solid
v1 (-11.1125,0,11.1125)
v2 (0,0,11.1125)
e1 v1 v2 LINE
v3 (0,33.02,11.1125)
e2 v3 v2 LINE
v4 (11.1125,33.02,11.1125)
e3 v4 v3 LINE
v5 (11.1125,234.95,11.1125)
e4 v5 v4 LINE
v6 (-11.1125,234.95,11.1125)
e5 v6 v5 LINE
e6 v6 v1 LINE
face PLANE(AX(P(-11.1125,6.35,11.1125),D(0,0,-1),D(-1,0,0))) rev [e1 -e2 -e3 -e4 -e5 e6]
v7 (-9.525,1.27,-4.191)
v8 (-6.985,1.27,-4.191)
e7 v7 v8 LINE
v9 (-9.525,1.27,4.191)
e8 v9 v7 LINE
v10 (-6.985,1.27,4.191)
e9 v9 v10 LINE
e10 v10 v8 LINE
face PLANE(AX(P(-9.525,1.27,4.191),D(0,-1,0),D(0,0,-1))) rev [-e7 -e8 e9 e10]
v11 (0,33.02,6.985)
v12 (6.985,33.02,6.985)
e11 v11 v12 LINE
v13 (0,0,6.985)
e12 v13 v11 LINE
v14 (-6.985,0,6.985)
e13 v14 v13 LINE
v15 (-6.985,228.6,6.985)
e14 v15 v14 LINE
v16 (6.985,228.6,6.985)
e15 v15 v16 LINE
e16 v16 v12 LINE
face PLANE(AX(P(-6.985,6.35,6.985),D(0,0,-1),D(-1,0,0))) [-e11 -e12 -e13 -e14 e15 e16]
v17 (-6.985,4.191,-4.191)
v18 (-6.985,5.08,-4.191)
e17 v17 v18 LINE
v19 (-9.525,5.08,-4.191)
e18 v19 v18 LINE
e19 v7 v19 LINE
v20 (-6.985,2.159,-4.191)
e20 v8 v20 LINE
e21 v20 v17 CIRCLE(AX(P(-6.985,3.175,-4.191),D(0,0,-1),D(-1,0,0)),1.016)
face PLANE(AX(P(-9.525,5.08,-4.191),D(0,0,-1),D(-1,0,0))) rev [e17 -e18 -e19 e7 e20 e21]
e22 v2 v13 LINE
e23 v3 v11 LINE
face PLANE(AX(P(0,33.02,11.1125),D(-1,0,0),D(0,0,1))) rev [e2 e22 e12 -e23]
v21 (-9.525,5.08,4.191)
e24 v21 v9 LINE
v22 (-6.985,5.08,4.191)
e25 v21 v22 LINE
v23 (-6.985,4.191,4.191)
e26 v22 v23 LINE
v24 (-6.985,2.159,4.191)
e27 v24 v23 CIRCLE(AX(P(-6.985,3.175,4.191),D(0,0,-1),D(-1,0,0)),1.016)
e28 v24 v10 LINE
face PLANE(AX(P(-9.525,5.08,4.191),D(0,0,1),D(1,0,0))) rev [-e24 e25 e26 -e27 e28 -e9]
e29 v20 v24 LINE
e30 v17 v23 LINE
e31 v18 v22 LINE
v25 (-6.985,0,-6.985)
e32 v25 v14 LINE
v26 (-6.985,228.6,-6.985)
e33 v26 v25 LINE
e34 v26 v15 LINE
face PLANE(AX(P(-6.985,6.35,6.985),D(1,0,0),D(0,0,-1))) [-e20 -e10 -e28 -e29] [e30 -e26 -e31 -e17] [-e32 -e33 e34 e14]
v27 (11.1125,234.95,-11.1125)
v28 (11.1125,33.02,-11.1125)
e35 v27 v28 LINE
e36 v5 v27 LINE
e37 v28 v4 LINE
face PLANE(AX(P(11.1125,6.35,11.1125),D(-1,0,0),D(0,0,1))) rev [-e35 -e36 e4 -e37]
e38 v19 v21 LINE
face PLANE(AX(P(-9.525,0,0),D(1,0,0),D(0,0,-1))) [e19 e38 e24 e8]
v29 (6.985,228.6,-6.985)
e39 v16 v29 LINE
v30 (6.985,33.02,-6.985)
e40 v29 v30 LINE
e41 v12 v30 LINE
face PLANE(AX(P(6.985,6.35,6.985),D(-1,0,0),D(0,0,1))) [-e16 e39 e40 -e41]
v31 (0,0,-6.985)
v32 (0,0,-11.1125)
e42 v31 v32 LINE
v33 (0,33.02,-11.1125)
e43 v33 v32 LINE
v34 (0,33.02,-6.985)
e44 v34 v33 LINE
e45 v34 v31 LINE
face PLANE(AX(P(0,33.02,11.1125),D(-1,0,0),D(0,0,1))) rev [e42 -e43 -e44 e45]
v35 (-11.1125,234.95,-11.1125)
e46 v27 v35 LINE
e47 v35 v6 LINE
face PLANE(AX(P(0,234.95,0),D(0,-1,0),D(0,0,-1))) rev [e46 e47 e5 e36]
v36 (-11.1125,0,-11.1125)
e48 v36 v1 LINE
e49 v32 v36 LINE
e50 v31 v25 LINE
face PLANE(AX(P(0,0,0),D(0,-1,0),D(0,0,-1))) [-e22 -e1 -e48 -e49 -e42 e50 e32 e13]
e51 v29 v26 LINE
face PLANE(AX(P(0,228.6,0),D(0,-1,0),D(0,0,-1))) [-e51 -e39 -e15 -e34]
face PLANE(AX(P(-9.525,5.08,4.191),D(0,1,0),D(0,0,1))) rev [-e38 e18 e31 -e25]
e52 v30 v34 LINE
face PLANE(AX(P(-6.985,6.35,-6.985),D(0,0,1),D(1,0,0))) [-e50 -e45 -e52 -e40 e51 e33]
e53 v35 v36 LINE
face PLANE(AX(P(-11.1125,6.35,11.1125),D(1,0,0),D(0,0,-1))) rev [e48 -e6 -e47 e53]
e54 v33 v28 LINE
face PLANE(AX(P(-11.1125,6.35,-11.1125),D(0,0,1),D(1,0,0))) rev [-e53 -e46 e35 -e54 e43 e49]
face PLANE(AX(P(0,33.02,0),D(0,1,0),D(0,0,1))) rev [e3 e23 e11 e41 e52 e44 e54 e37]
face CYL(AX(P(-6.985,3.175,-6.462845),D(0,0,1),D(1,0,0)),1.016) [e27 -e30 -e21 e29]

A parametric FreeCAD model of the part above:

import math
import FreeCAD as App
import Part
import Sketcher
Q = App.Units.Quantity


def add_polygon(sketch, points):
    """Adds a closed chain of lines whose ends are joined by coincident constraints."""
    first, n = sketch.GeometryCount, len(points)
    for a, b in zip(points, points[1:] + points[:1]):
        sketch.addGeometry(Part.LineSegment(App.Vector(*a, 0), App.Vector(*b, 0)), False)
    for i in range(n):
        sketch.addConstraint(Sketcher.Constraint("Coincident", first + i, 2, first + (i + 1) % n, 1))

doc = App.newDocument("Part")
body = doc.addObject("PartDesign::Body", "Body")

# Sketch on XZ plane
sketch1 = body.newObject("Sketcher::SketchObject", "Sketch")
sketch1.AttachmentSupport = (doc.getObject("XZ_Plane"), [""])
sketch1.MapMode = "FlatFace"
add_polygon(sketch1, [(-11, -11), (-11, 11), (11, 11), (11, -11)])  # lines 0-3
add_polygon(sketch1, [(7, 7), (-7, 7), (-7, -7), (7, -7)])  # lines 4-7
sketch1.addConstraint(Sketcher.Constraint("Vertical", 0))
sketch1.addConstraint(Sketcher.Constraint("Horizontal", 1))
sketch1.addConstraint(Sketcher.Constraint("Vertical", 2))
sketch1.addConstraint(Sketcher.Constraint("Horizontal", 3))
sketch1.addConstraint(Sketcher.Constraint("Horizontal", 4))
sketch1.addConstraint(Sketcher.Constraint("Vertical", 5))
sketch1.addConstraint(Sketcher.Constraint("Horizontal", 6))
sketch1.addConstraint(Sketcher.Constraint("Vertical", 7))
sketch1.addConstraint(Sketcher.Constraint("Symmetric", 0, 2, 2, 2, -1, 1))
sketch1.addConstraint(Sketcher.Constraint("Symmetric", 4, 2, 6, 2, -1, 1))
sketch1.addConstraint(Sketcher.Constraint("Equal", 3, 0))
sketch1.addConstraint(Sketcher.Constraint("Equal", 6, 5))
sketch1.addConstraint(Sketcher.Constraint("DistanceX", 4, 2, 4, 1, Q("0.55 in")))
sketch1.addConstraint(Sketcher.Constraint("DistanceX", 1, 1, 1, 2, Q("0.875 in")))
pad1 = body.newObject("PartDesign::Pad", "Pad")
pad1.Profile = sketch1
pad1.Length = Q("0.25 in")
pad1.Reversed = True

# Sketch on YZ plane
sketch2 = body.newObject("Sketcher::SketchObject", "Sketch001")
sketch2.AttachmentSupport = (doc.getObject("YZ_Plane"), [""])
sketch2.MapMode = "FlatFace"
sketch2.AttachmentOffset = App.Placement(App.Vector(0, 0, -0.275 * 25.4), App.Rotation())
add_polygon(sketch2, [(5.1, 4.2), (1.3, 4.2), (1.3, -4.2), (5.1, -4.2)])  # lines 0-3
sketch2.addConstraint(Sketcher.Constraint("Horizontal", 0))
sketch2.addConstraint(Sketcher.Constraint("Vertical", 1))
sketch2.addConstraint(Sketcher.Constraint("Horizontal", 2))
sketch2.addConstraint(Sketcher.Constraint("Vertical", 3))
sketch2.addConstraint(Sketcher.Constraint("DistanceX", 0, 2, 0, 1, Q("0.15 in")))
sketch2.addConstraint(Sketcher.Constraint("DistanceY", 1, 2, 1, 1, Q("0.33 in")))
sketch2.addConstraint(Sketcher.Constraint("DistanceX", -1, 1, 2, 2, Q("0.2 in")))
sketch2.addConstraint(Sketcher.Constraint("DistanceY", -1, 1, 0, 2, Q("0.165 in")))
pocket1 = body.newObject("PartDesign::Pocket", "Pocket")
pocket1.Profile = sketch2
pocket1.Length = Q("0.1 in")

# Sketch on XY plane
sketch3 = body.newObject("Sketcher::SketchObject", "Sketch002")
sketch3.AttachmentSupport = (doc.getObject("XY_Plane"), [""])
sketch3.MapMode = "FlatFace"
sketch3.AttachmentOffset = App.Placement(App.Vector(0, 0, 0.165 * 25.4), App.Rotation())
sketch3.addGeometry(Part.LineSegment(App.Vector(-7, 4.2, 0), App.Vector(-7, 2.2, 0)), False)
sketch3.addGeometry(Part.ArcOfCircle(Part.Circle(App.Vector(-7, 3.2, 0), App.Vector(0, 0, 1), 1), math.radians(90), math.radians(270)), False)
sketch3.addConstraint(Sketcher.Constraint("Coincident", 0, 1, 1, 1))
sketch3.addConstraint(Sketcher.Constraint("Coincident", 1, 2, 0, 2))
sketch3.addConstraint(Sketcher.Constraint("Vertical", 0))
sketch3.addConstraint(Sketcher.Constraint("Vertical", 1, 3, 0, 1))
sketch3.addConstraint(Sketcher.Constraint("Radius", 1, Q("0.04 in")))
sketch3.addConstraint(Sketcher.Constraint("DistanceX", 1, 3, -1, 1, Q("0.275 in")))
sketch3.addConstraint(Sketcher.Constraint("DistanceY", -1, 1, 1, 3, Q("0.125 in")))
pad2 = body.newObject("PartDesign::Pad", "Pad001")
pad2.Profile = sketch3
pad2.Length = Q("0.33 in")
pad2.Reversed = True

# Sketch on XZ plane
sketch4 = body.newObject("Sketcher::SketchObject", "Sketch003")
sketch4.AttachmentSupport = (doc.getObject("XZ_Plane"), [""])
sketch4.MapMode = "FlatFace"
sketch4.AttachmentOffset = App.Placement(App.Vector(0, 0, -0.25 * 25.4), App.Rotation())
add_polygon(sketch4, [(-11, -11), (-11, 11), (11, 11), (11, -11)])  # lines 0-3
add_polygon(sketch4, [(7, 7), (-7, 7), (-7, -7), (7, -7)])  # lines 4-7
sketch4.addConstraint(Sketcher.Constraint("Vertical", 0))
sketch4.addConstraint(Sketcher.Constraint("Horizontal", 1))
sketch4.addConstraint(Sketcher.Constraint("Vertical", 2))
sketch4.addConstraint(Sketcher.Constraint("Horizontal", 3))
sketch4.addConstraint(Sketcher.Constraint("Horizontal", 4))
sketch4.addConstraint(Sketcher.Constraint("Vertical", 5))
sketch4.addConstraint(Sketcher.Constraint("Horizontal", 6))
sketch4.addConstraint(Sketcher.Constraint("Vertical", 7))
sketch4.addConstraint(Sketcher.Constraint("Symmetric", 0, 2, 2, 2, -1, 1))
sketch4.addConstraint(Sketcher.Constraint("Symmetric", 4, 2, 6, 2, -1, 1))
sketch4.addConstraint(Sketcher.Constraint("Equal", 3, 0))
sketch4.addConstraint(Sketcher.Constraint("Equal", 6, 5))
sketch4.addConstraint(Sketcher.Constraint("DistanceX", 4, 2, 4, 1, Q("0.55 in")))
sketch4.addConstraint(Sketcher.Constraint("DistanceX", 1, 1, 1, 2, Q("0.875 in")))
pad3 = body.newObject("PartDesign::Pad", "Pad002")
pad3.Profile = sketch4
pad3.Length = Q("8.75 in")
pad3.Reversed = True

# Sketch on XZ plane
sketch5 = body.newObject("Sketcher::SketchObject", "Sketch004")
sketch5.AttachmentSupport = (doc.getObject("XZ_Plane"), [""])
sketch5.MapMode = "FlatFace"
sketch5.AttachmentOffset = App.Placement(App.Vector(0, 0, -9 * 25.4), App.Rotation())
add_polygon(sketch5, [(-11, -11), (-11, 11), (11, 11), (11, -11)])  # lines 0-3
sketch5.addConstraint(Sketcher.Constraint("Vertical", 0))
sketch5.addConstraint(Sketcher.Constraint("Horizontal", 1))
sketch5.addConstraint(Sketcher.Constraint("Vertical", 2))
sketch5.addConstraint(Sketcher.Constraint("Horizontal", 3))
sketch5.addConstraint(Sketcher.Constraint("Symmetric", 0, 2, 2, 2, -1, 1))
sketch5.addConstraint(Sketcher.Constraint("Equal", 3, 0))
sketch5.addConstraint(Sketcher.Constraint("DistanceX", 1, 1, 1, 2, Q("0.875 in")))
pad4 = body.newObject("PartDesign::Pad", "Pad003")
pad4.Profile = sketch5
pad4.Length = Q("0.25 in")
pad4.Reversed = True

# Sketch on XZ plane
sketch6 = body.newObject("Sketcher::SketchObject", "Sketch005")
sketch6.AttachmentSupport = (doc.getObject("XZ_Plane"), [""])
sketch6.MapMode = "FlatFace"
add_polygon(sketch6, [(0, 11), (0, -11), (11, -11), (11, 11)])  # lines 0-3
sketch6.addConstraint(Sketcher.Constraint("Vertical", 0))
sketch6.addConstraint(Sketcher.Constraint("Horizontal", 1))
sketch6.addConstraint(Sketcher.Constraint("Vertical", 2))
sketch6.addConstraint(Sketcher.Constraint("Horizontal", 3))
sketch6.addConstraint(Sketcher.Constraint("Symmetric", 0, 2, 3, 2, -1, 1))
sketch6.addConstraint(Sketcher.Constraint("DistanceX", 1, 1, 1, 2, Q("0.4375 in")))
sketch6.addConstraint(Sketcher.Constraint("DistanceY", 0, 2, 0, 1, Q("0.875 in")))
pocket2 = body.newObject("PartDesign::Pocket", "Pocket001")
pocket2.Profile = sketch6
pocket2.Length = Q("1.3 in")

doc.recompute()
